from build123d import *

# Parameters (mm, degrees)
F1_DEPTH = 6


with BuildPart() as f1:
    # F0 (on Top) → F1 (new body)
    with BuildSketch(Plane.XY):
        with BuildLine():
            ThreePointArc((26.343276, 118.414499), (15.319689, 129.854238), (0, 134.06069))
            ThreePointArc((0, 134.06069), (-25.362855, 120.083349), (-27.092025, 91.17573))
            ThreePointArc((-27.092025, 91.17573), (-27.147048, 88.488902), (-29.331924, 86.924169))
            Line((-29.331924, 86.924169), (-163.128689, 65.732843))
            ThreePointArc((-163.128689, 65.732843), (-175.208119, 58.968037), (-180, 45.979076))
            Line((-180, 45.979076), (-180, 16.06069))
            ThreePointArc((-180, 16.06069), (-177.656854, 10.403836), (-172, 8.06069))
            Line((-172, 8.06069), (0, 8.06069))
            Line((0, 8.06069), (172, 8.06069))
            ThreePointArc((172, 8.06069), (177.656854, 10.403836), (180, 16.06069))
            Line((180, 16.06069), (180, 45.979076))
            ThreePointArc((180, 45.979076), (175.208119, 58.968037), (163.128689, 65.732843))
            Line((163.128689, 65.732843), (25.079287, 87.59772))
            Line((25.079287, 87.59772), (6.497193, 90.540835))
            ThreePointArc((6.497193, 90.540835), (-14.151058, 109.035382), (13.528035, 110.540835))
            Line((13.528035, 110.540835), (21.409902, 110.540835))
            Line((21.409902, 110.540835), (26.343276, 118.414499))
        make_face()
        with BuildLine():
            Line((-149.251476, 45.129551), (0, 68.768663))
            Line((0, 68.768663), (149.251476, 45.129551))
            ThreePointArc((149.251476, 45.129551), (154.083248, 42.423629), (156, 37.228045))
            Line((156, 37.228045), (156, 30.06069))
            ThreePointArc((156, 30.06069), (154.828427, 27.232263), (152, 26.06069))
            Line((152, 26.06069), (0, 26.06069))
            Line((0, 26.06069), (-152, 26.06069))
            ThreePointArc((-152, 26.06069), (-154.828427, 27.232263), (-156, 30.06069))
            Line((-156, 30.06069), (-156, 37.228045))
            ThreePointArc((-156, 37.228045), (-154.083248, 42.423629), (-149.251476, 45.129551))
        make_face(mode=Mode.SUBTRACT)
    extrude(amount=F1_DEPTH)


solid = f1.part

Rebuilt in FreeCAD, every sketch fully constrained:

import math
import FreeCAD as App
import Part
import Sketcher

V = App.Vector
Q = App.Units.Quantity

doc = App.newDocument("Part")
body = doc.addObject("PartDesign::Body", "Body")

# Sketch on XY plane
sketch1 = body.newObject("Sketcher::SketchObject", "Sketch")
sketch1.AttachmentSupport = (doc.getObject("XY_Plane"), [""])
sketch1.MapMode = "FlatFace"
sketch1.addGeometry(Part.ArcOfCircle(Part.Circle(V(-0.000001, 104.060688, 0), V(0, 0, 1), 30.000002), math.radians(28.584893), math.radians(89.999998)), False)
sketch1.addGeometry(Part.ArcOfCircle(Part.Circle(V(0, 104.06069, 0), V(0, 0, 1), 30), math.radians(89.999999), math.radians(205.435749)), False)
sketch1.addGeometry(Part.ArcOfCircle(Part.Circle(V(-29.801227, 89.887234, 0), V(0, 0, 1), 3), math.radians(-81.000005), math.radians(25.435755)), False)
sketch1.addGeometry(Part.LineSegment(V(-29.331924, 86.924169, 0), V(-163.128689, 65.732843, 0)), False)
sketch1.addGeometry(Part.ArcOfCircle(Part.Circle(V(-159.999999, 45.979075, 0), V(0, 0, 1), 20.000001), math.radians(99.000002), math.radians(179.999998)), False)
sketch1.addGeometry(Part.LineSegment(V(-180, 45.979076, 0), V(-180, 16.06069, 0)), False)
sketch1.addGeometry(Part.ArcOfCircle(Part.Circle(V(-171.999999, 16.060691, 0), V(0, 0, 1), 8.000001), math.radians(-179.999994), math.radians(-90.000006)), False)
sketch1.addGeometry(Part.LineSegment(V(-172, 8.06069, 0), V(172, 8.06069, 0)), False)
sketch1.addGeometry(Part.ArcOfCircle(Part.Circle(V(171.999999, 16.060691, 0), V(0, 0, 1), 8.000001), math.radians(-89.999994), math.radians(-0.000006)), False)
sketch1.addGeometry(Part.LineSegment(V(180, 16.06069, 0), V(180, 45.979076, 0)), False)
sketch1.addGeometry(Part.ArcOfCircle(Part.Circle(V(159.999999, 45.979075, 0), V(0, 0, 1), 20.000001), math.radians(0.000002), math.radians(80.999998)), False)
sketch1.addGeometry(Part.LineSegment(V(163.128689, 65.732843, 0), V(25.079287, 87.59772, 0)), False)
sketch1.addGeometry(Part.LineSegment(V(25.079287, 87.59772, 0), V(6.497193, 90.540835, 0)), False)
sketch1.addGeometry(Part.ArcOfCircle(Part.Circle(V(0, 104.06069, 0), V(0, 0, 1), 15), math.radians(25.595165), math.radians(295.667392)), False)
sketch1.addGeometry(Part.LineSegment(V(13.528035, 110.540835, 0), V(21.409902, 110.540835, 0)), False)
sketch1.addGeometry(Part.LineSegment(V(21.409902, 110.540835, 0), V(26.343276, 118.414499, 0)), False)
sketch1.addGeometry(Part.ArcOfCircle(Part.Circle(V(-148.000001, 37.228045, 0), V(0, 0, 1), 7.999999), math.radians(98.999994), math.radians(180.000003)), False)
sketch1.addGeometry(Part.LineSegment(V(-149.251476, 45.129551, 0), V(0, 68.768663, 0)), False)
sketch1.addGeometry(Part.LineSegment(V(0, 68.768663, 0), V(149.251476, 45.129551, 0)), False)
sketch1.addGeometry(Part.ArcOfCircle(Part.Circle(V(148.000001, 37.228045, 0), V(0, 0, 1), 7.999999), math.radians(-0.000003), math.radians(81.000006)), False)
sketch1.addGeometry(Part.LineSegment(V(156, 37.228045, 0), V(156, 30.06069, 0)), False)
sketch1.addGeometry(Part.ArcOfCircle(Part.Circle(V(152, 30.06069, 0), V(0, 0, 1), 4), math.radians(-89.999994), math.radians(-0.000006)), False)
sketch1.addGeometry(Part.LineSegment(V(152, 26.06069, 0), V(-152, 26.06069, 0)), False)
sketch1.addGeometry(Part.ArcOfCircle(Part.Circle(V(-152, 30.06069, 0), V(0, 0, 1), 4), math.radians(-179.999994), math.radians(-90.000006)), False)
sketch1.addGeometry(Part.LineSegment(V(-156, 30.06069, 0), V(-156, 37.228045, 0)), False)
sketch1.addConstraint(Sketcher.Constraint("Tangent", 0, 2, 1, 1))
sketch1.addConstraint(Sketcher.Constraint("Tangent", 1, 2, 2, 2))
sketch1.addConstraint(Sketcher.Constraint("Tangent", 2, 1, 3, 1))
sketch1.addConstraint(Sketcher.Constraint("Tangent", 3, 2, 4, 1))
sketch1.addConstraint(Sketcher.Constraint("Tangent", 4, 2, 5, 1))
sketch1.addConstraint(Sketcher.Constraint("Tangent", 5, 2, 6, 1))
sketch1.addConstraint(Sketcher.Constraint("Tangent", 6, 2, 7, 1))
sketch1.addConstraint(Sketcher.Constraint("Tangent", 7, 2, 8, 1))
sketch1.addConstraint(Sketcher.Constraint("Tangent", 8, 2, 9, 1))
sketch1.addConstraint(Sketcher.Constraint("Tangent", 9, 2, 10, 1))
sketch1.addConstraint(Sketcher.Constraint("Tangent", 10, 2, 11, 1))
sketch1.addConstraint(Sketcher.Constraint("Coincident", 11, 2, 12, 1))
sketch1.addConstraint(Sketcher.Constraint("Coincident", 12, 2, 13, 2))
sketch1.addConstraint(Sketcher.Constraint("Coincident", 13, 1, 14, 1))
sketch1.addConstraint(Sketcher.Constraint("Coincident", 14, 2, 15, 1))
sketch1.addConstraint(Sketcher.Constraint("Coincident", 15, 2, 0, 1))
sketch1.addConstraint(Sketcher.Constraint("Tangent", 16, 1, 17, 1))
sketch1.addConstraint(Sketcher.Constraint("Coincident", 17, 2, 18, 1))
sketch1.addConstraint(Sketcher.Constraint("Tangent", 18, 2, 19, 2))
sketch1.addConstraint(Sketcher.Constraint("Tangent", 19, 1, 20, 1))
sketch1.addConstraint(Sketcher.Constraint("Tangent", 20, 2, 21, 2))
sketch1.addConstraint(Sketcher.Constraint("Tangent", 21, 1, 22, 1))
sketch1.addConstraint(Sketcher.Constraint("Tangent", 22, 2, 23, 2))
sketch1.addConstraint(Sketcher.Constraint("Tangent", 23, 1, 24, 1))
sketch1.addConstraint(Sketcher.Constraint("Tangent", 24, 2, 16, 2))
sketch1.addConstraint(Sketcher.Constraint("Vertical", 5))
sketch1.addConstraint(Sketcher.Constraint("Horizontal", 7))
sketch1.addConstraint(Sketcher.Constraint("Vertical", 9))
sketch1.addConstraint(Sketcher.Constraint("Horizontal", 14))
sketch1.addConstraint(Sketcher.Constraint("Vertical", 20))
sketch1.addConstraint(Sketcher.Constraint("Horizontal", 22))
sketch1.addConstraint(Sketcher.Constraint("Vertical", 24))
sketch1.addConstraint(Sketcher.Constraint("Coincident", 13, 3, 0, 3))
sketch1.addConstraint(Sketcher.Constraint("Equal", 6, 8))
sketch1.addConstraint(Sketcher.Constraint("Equal", 4, 10))
sketch1.addConstraint(Sketcher.Constraint("Equal", 16, 19))
sketch1.addConstraint(Sketcher.Constraint("Equal", 21, 23))
sketch1.addConstraint(Sketcher.Constraint("Symmetric", 4, 3, 10, 3, -2))
sketch1.addConstraint(Sketcher.Constraint("Symmetric", 16, 3, 19, 3, -2))
sketch1.addConstraint(Sketcher.Constraint("PointOnObject", 0, 3, -2))
sketch1.addConstraint(Sketcher.Constraint("PointOnObject", 0, 2, -2))
sketch1.addConstraint(Sketcher.Constraint("PointOnObject", 17, 2, -2))
sketch1.addConstraint(Sketcher.Constraint("Parallel", 11, 12))
sketch1.addConstraint(Sketcher.Constraint("Parallel", 3, 17))
sketch1.addConstraint(Sketcher.Constraint("Parallel", 12, 18))
sketch1.addConstraint(Sketcher.Constraint("Radius", 1, Q("30 mm")))
sketch1.addConstraint(Sketcher.Constraint("Radius", 2, Q("3 mm")))
sketch1.addConstraint(Sketcher.Constraint("Radius", 4, Q("20.000001 mm")))
sketch1.addConstraint(Sketcher.Constraint("Radius", 6, Q("8.000001 mm")))
sketch1.addConstraint(Sketcher.Constraint("Radius", 13, Q("15 mm")))
sketch1.addConstraint(Sketcher.Constraint("Radius", 16, Q("7.999999 mm")))
sketch1.addConstraint(Sketcher.Constraint("Radius", 21, Q("4 mm")))
sketch1.addConstraint(Sketcher.Constraint("DistanceX", 7, 1, 7, 2, Q("344 mm")))
sketch1.addConstraint(Sketcher.Constraint("DistanceX", 22, 2, 22, 1, Q("304 mm")))
sketch1.addConstraint(Sketcher.Constraint("Angle", 3, Q("-171 deg")))
sketch1.addConstraint(Sketcher.Constraint("DistanceY", 6, 3, 1, 3, Q("87.999999 mm")))
sketch1.addConstraint(Sketcher.Constraint("DistanceY", 8, 3, 21, 3, Q("14 mm")))
sketch1.addConstraint(Sketcher.Constraint("DistanceY", 21, 3, 13, 3, Q("74 mm")))
sketch1.addConstraint(Sketcher.Constraint("DistanceY", 12, 2, 13, 1, Q("20 mm")))
sketch1.addConstraint(Sketcher.Constraint("DistanceX", -1, 1, 14, 2, Q("21.409902 mm")))
sketch1.addConstraint(Sketcher.Constraint("DistanceY", -1, 1, 15, 2, Q("118.414499 mm")))
sketch1.addConstraint(Sketcher.Constraint("Distance", 3, Q("135.464559 mm")))
sketch1.addConstraint(Sketcher.Constraint("DistanceY", 20, 2, 20, 1, Q("7.167355 mm")))
sketch1.addConstraint(Sketcher.Constraint("DistanceY", -1, 1, 1, 3, Q("104.06069 mm")))
sketch1.addConstraint(Sketcher.Constraint("DistanceY", -1, 1, 11, 2, Q("87.59772 mm")))
pad1 = body.newObject("PartDesign::Pad", "Pad")
pad1.Profile = sketch1
pad1.Length = 6

doc.recompute()
